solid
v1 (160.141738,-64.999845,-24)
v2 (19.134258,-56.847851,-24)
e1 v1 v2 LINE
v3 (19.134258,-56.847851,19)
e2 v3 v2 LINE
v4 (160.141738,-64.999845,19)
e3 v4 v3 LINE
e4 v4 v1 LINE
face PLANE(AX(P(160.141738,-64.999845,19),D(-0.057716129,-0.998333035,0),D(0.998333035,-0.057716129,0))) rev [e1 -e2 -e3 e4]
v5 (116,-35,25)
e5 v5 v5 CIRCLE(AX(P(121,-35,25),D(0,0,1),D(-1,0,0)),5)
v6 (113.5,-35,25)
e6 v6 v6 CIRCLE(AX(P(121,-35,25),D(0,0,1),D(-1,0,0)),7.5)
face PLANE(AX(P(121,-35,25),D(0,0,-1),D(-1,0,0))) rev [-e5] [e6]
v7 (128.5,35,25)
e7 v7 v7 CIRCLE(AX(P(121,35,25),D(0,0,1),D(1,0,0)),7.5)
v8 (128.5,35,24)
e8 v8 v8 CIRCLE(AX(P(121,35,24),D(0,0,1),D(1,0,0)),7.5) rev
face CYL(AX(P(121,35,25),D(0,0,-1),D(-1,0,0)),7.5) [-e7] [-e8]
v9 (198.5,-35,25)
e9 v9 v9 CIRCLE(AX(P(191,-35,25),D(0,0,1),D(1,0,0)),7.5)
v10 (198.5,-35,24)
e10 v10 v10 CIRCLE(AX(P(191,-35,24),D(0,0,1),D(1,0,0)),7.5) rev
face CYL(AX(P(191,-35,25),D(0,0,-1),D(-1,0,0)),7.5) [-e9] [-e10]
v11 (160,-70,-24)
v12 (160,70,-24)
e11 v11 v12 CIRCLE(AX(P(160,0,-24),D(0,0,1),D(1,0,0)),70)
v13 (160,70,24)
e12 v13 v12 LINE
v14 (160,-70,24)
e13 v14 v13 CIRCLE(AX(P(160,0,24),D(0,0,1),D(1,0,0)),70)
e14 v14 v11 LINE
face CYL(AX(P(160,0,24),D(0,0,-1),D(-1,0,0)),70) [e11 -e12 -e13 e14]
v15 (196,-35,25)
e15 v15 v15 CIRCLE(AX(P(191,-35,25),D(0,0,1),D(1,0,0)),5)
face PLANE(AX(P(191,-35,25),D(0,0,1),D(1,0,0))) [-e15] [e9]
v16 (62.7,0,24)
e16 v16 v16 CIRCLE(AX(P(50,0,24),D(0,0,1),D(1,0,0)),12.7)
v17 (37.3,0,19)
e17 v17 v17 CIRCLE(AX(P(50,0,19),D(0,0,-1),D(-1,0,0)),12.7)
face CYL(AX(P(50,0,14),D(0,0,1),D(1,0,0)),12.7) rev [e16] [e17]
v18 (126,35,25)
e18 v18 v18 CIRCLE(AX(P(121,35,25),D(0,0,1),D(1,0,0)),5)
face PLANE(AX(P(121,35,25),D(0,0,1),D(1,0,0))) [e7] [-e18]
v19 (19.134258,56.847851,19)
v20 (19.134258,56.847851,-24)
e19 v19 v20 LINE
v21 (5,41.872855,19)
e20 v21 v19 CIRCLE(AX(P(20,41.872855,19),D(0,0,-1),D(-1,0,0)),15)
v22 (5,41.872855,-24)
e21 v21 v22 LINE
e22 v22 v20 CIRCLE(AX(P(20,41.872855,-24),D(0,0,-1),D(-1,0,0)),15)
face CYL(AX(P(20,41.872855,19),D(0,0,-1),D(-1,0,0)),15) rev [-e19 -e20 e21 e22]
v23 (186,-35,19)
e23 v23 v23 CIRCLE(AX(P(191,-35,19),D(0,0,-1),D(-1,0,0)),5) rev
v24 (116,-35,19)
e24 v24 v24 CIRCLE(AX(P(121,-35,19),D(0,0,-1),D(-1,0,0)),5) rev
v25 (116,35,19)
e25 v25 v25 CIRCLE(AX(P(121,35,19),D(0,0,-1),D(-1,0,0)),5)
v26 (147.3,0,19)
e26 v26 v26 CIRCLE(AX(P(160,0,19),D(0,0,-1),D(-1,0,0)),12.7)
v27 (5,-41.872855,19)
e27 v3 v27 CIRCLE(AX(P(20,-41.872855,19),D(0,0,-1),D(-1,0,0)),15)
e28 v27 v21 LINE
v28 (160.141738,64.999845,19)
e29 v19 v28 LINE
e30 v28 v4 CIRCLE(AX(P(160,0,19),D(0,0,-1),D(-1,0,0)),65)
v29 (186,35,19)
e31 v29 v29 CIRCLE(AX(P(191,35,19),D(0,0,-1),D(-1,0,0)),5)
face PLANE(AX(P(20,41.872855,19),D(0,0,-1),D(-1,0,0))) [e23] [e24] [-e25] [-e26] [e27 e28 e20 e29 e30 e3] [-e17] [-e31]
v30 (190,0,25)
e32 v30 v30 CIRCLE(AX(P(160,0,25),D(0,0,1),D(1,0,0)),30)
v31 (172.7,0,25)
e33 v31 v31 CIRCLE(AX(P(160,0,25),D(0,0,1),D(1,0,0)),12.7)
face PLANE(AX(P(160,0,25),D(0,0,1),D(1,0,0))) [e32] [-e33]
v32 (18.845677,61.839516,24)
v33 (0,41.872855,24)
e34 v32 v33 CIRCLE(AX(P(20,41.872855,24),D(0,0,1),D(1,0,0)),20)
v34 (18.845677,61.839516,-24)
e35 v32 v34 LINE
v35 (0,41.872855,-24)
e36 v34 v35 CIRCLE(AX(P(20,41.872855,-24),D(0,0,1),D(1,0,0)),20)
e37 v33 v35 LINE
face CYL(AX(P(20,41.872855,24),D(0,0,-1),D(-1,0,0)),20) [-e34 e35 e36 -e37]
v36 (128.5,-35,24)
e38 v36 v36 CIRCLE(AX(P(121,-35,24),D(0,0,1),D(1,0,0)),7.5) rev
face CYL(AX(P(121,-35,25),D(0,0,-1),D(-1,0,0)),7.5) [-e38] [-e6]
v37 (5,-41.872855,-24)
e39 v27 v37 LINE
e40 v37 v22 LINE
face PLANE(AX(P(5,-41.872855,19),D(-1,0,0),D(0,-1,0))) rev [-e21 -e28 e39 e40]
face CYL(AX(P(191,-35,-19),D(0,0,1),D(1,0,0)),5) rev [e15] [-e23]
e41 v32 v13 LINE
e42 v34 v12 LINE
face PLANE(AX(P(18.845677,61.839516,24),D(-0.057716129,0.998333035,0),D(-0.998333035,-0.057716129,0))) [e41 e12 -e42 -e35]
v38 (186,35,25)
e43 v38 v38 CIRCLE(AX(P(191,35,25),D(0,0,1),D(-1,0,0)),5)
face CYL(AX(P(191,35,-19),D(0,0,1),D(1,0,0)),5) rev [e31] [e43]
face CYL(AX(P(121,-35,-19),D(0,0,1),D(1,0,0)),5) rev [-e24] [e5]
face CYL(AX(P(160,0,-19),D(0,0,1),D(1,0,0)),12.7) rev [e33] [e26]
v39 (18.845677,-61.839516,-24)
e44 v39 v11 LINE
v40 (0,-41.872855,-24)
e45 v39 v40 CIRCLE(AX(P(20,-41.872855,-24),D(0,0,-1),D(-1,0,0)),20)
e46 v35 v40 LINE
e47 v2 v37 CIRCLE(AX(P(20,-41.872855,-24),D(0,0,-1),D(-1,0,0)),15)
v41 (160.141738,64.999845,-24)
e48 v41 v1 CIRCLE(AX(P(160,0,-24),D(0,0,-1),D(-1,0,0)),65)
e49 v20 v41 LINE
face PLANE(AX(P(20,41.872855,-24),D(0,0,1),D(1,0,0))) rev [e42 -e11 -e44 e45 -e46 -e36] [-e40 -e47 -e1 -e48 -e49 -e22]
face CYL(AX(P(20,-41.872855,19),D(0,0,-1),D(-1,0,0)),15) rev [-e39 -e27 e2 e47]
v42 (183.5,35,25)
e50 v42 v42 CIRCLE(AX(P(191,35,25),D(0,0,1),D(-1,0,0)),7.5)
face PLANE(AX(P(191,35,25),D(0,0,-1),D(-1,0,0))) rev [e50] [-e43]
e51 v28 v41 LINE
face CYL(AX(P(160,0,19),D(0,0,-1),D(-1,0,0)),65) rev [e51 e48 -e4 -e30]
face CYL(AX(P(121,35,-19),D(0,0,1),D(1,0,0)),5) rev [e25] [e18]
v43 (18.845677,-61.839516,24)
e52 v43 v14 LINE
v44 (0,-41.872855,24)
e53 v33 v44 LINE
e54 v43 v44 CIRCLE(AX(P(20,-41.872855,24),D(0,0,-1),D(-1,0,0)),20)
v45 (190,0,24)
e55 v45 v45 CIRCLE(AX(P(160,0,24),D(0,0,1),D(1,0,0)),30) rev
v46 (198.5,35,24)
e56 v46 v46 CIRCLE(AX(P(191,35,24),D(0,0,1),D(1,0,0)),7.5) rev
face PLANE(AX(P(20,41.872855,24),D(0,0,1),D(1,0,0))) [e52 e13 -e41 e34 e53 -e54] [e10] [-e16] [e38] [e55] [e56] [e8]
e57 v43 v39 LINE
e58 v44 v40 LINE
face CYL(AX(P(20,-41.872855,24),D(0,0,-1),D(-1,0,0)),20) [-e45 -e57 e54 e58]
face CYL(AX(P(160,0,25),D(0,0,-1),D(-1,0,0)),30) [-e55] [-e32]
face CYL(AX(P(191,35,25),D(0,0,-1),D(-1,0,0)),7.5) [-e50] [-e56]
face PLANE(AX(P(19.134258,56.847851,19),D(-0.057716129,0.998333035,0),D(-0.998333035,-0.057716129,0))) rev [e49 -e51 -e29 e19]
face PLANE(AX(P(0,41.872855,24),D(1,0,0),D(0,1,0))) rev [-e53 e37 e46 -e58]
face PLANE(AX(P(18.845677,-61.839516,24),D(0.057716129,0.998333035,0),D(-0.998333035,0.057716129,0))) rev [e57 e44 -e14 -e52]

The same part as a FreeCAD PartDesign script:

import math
import FreeCAD as App
import Part
import Sketcher
from FreeCAD import Vector
Q = App.Units.Quantity

doc = App.newDocument("Part")
params = doc.addObject("Spreadsheet::Sheet", "Params")
for row, (alias, value) in enumerate([
    ("sketch1_radius", "20 mm"),
    ("sketch1_radius2", "70 mm"),
    ("pad1_length", "48 mm"),
    ("sketch2_radius", "65 mm"),
    ("sketch2_radius2", "15 mm"),
    ("pocket1_length", "43 mm"),
    ("sketch3_diameter", "25.4 mm"),
    ("pocket2_length", "43 mm"),
    ("sketch4_diameter", "10 mm"),
    ("pocket3_length", "43 mm"),
    ("sketch5_diameter", "15 mm"),
    ("sketch5_diameter2", "10 mm"),
    ("sketch5_diameter3", "60 mm"),
    ("sketch5_diameter4", "22 mm"),
    ("pad2_length", "2 mm"),
    ("sketch6_diameter", "25.4 mm"),
    ("pocket4_length", "10 mm"),
    ("sketch7_diameter", "25.4 mm"),
    ("pocket5_length", "10 mm"),
], start=1):
    params.set(f"A{row}", alias)
    params.set(f"B{row}", "=" + value)
    params.setAlias(f"B{row}", alias)

body = doc.addObject("PartDesign::Body", "Body")

# Sketch on XY plane
sketch1 = body.newObject("Sketcher::SketchObject", "Sketch")
sketch1.AttachmentSupport = (doc.getObject("XY_Plane"), [""])
sketch1.MapMode = "FlatFace"
sketch1.addGeometry(Part.LineSegment(Vector(0, 42, 0), Vector(0, -42, 0)), False)
sketch1.addGeometry(Part.ArcOfCircle(Part.Circle(Vector(20, -42, 0), Vector(0, 0, 1), 20), math.radians(180), math.radians(267)), False)
sketch1.addGeometry(Part.LineSegment(Vector(19, -62, 0), Vector(160, -70, 0)), False)
sketch1.addGeometry(Part.ArcOfCircle(Part.Circle(Vector(160, 0, 0), Vector(0, 0, 1), 70), math.radians(-90), math.radians(90)), False)
sketch1.addGeometry(Part.LineSegment(Vector(160, 70, 0), Vector(19, 62, 0)), False)
sketch1.addGeometry(Part.ArcOfCircle(Part.Circle(Vector(20, 42, 0), Vector(0, 0, 1), 20), math.radians(93), math.radians(180)), False)
sketch1.addConstraint(Sketcher.Constraint("Tangent", 0, 2, 1, 1))
sketch1.addConstraint(Sketcher.Constraint("Tangent", 1, 2, 2, 1))
sketch1.addConstraint(Sketcher.Constraint("Coincident", 2, 2, 3, 1))
sketch1.addConstraint(Sketcher.Constraint("Coincident", 3, 2, 4, 1))
sketch1.addConstraint(Sketcher.Constraint("Tangent", 4, 2, 5, 1))
sketch1.addConstraint(Sketcher.Constraint("Tangent", 5, 2, 0, 1))
sketch1.addConstraint(Sketcher.Constraint("Vertical", 0))
sketch1.addConstraint(Sketcher.Constraint("Equal", 1, 5))
sketch1.addConstraint(Sketcher.Constraint("Symmetric", 0, 2, 5, 2, -1, 1))
sketch1.addConstraint(Sketcher.Constraint("Symmetric", 2, 2, 3, 2, -1))
sketch1.addConstraint(Sketcher.Constraint("Vertical", 3, 3, 2, 2))
sketch1.addConstraint(Sketcher.Constraint("Radius", 1, Q("20 mm")))
sketch1.addConstraint(Sketcher.Constraint("Radius", 3, Q("70 mm")))
sketch1.addConstraint(Sketcher.Constraint("DistanceX", -1, 1, 3, 3, Q("160 mm")))
sketch1.addConstraint(Sketcher.Constraint("DistanceY", 0, 2, 0, 1, Q("83.74571 mm")))
sketch1.setExpression("Constraints[11]", "Params.sketch1_radius")
sketch1.setExpression("Constraints[12]", "Params.sketch1_radius2")
pad1 = body.newObject("PartDesign::Pad", "Pad")
pad1.Profile = sketch1
pad1.setExpression("Length", "Params.pad1_length")
pad1.Midplane = True

# Sketch on XY plane
sketch2 = body.newObject("Sketcher::SketchObject", "Sketch001")
sketch2.AttachmentSupport = (doc.getObject("XY_Plane"), [""])
sketch2.MapMode = "FlatFace"
sketch2.AttachmentOffset = App.Placement(Vector(0, 0, -24), App.Rotation())
sketch2.addGeometry(Part.LineSegment(Vector(19, 57, 0), Vector(160, 65, 0)), False)
sketch2.addGeometry(Part.ArcOfCircle(Part.Circle(Vector(160, 0, 0), Vector(0, 0, 1), 65), math.radians(-90), math.radians(90)), False)
sketch2.addGeometry(Part.LineSegment(Vector(160, -65, 0), Vector(19, -57, 0)), False)
sketch2.addGeometry(Part.ArcOfCircle(Part.Circle(Vector(20, -42, 0), Vector(0, 0, 1), 15), math.radians(180), math.radians(267)), False)
sketch2.addGeometry(Part.LineSegment(Vector(5, -42, 0), Vector(5, 42, 0)), False)
sketch2.addGeometry(Part.ArcOfCircle(Part.Circle(Vector(20, 42, 0), Vector(0, 0, 1), 15), math.radians(93), math.radians(180)), False)
sketch2.addConstraint(Sketcher.Constraint("Coincident", 0, 2, 1, 2))
sketch2.addConstraint(Sketcher.Constraint("Coincident", 1, 1, 2, 1))
sketch2.addConstraint(Sketcher.Constraint("Tangent", 2, 2, 3, 2))
sketch2.addConstraint(Sketcher.Constraint("Tangent", 3, 1, 4, 1))
sketch2.addConstraint(Sketcher.Constraint("Tangent", 4, 2, 5, 2))
sketch2.addConstraint(Sketcher.Constraint("Tangent", 5, 1, 0, 1))
sketch2.addConstraint(Sketcher.Constraint("Vertical", 4))
sketch2.addConstraint(Sketcher.Constraint("Equal", 3, 5))
sketch2.addConstraint(Sketcher.Constraint("Symmetric", 0, 2, 1, 1, -1))
sketch2.addConstraint(Sketcher.Constraint("Vertical", 2, 2, 5, 1))
sketch2.addConstraint(Sketcher.Constraint("Radius", 1, Q("65 mm")))
sketch2.addConstraint(Sketcher.Constraint("Radius", 3, Q("15 mm")))
sketch2.addConstraint(Sketcher.Constraint("DistanceX", -1, 1, 1, 3, Q("160 mm")))
sketch2.addConstraint(Sketcher.Constraint("DistanceX", -1, 1, 3, 3, Q("20 mm")))
sketch2.addConstraint(Sketcher.Constraint("DistanceY", 4, 1, 4, 2, Q("83.74571 mm")))
sketch2.addConstraint(Sketcher.Constraint("DistanceX", -1, 1, 2, 2, Q("19.134258 mm")))
sketch2.setExpression("Constraints[10]", "Params.sketch2_radius")
sketch2.setExpression("Constraints[11]", "Params.sketch2_radius2")
pocket1 = body.newObject("PartDesign::Pocket", "Pocket")
pocket1.Profile = sketch2
pocket1.setExpression("Length", "Params.pocket1_length")
pocket1.Reversed = True

# Sketch on XY plane
sketch3 = body.newObject("Sketcher::SketchObject", "Sketch002")
sketch3.AttachmentSupport = (doc.getObject("XY_Plane"), [""])
sketch3.MapMode = "FlatFace"
sketch3.AttachmentOffset = App.Placement(Vector(0, 0, 24), App.Rotation())
sketch3.addGeometry(Part.Circle(Vector(160, 0, 0), Vector(0, 0, 1), 13), False)
sketch3.addConstraint(Sketcher.Constraint("PointOnObject", 0, 3, -1))
sketch3.addConstraint(Sketcher.Constraint("Diameter", 0, Q("25.4 mm")))
sketch3.addConstraint(Sketcher.Constraint("DistanceX", -1, 1, 0, 3, Q("160 mm")))
sketch3.setExpression("Constraints[1]", "Params.sketch3_diameter")
pocket2 = body.newObject("PartDesign::Pocket", "Pocket001")
pocket2.Profile = sketch3
pocket2.setExpression("Length", "Params.pocket2_length")

# Sketch on XY plane
sketch4 = body.newObject("Sketcher::SketchObject", "Sketch003")
sketch4.AttachmentSupport = (doc.getObject("XY_Plane"), [""])
sketch4.MapMode = "FlatFace"
sketch4.AttachmentOffset = App.Placement(Vector(0, 0, 24), App.Rotation())
sketch4.addGeometry(Part.Circle(Vector(121, 35, 0), Vector(0, 0, 1), 5), False)
sketch4.addGeometry(Part.Circle(Vector(191, 35, 0), Vector(0, 0, 1), 5), False)
sketch4.addGeometry(Part.Circle(Vector(191, -35, 0), Vector(0, 0, 1), 5), False)
sketch4.addGeometry(Part.Circle(Vector(121, -35, 0), Vector(0, 0, 1), 5), False)
sketch4.addConstraint(Sketcher.Constraint("Equal", 0, 1))
sketch4.addConstraint(Sketcher.Constraint("Equal", 1, 2))
sketch4.addConstraint(Sketcher.Constraint("Equal", 2, 3))
sketch4.addConstraint(Sketcher.Constraint("Symmetric", 1, 3, 2, 3, -1))
sketch4.addConstraint(Sketcher.Constraint("Symmetric", 0, 3, 3, 3, -1))
sketch4.addConstraint(Sketcher.Constraint("Horizontal", 0, 3, 1, 3))
sketch4.addConstraint(Sketcher.Constraint("Diameter", 0, Q("10 mm")))
sketch4.addConstraint(Sketcher.Constraint("DistanceX", -1, 1, 0, 3, Q("121 mm")))
sketch4.addConstraint(Sketcher.Constraint("DistanceY", -1, 1, 0, 3, Q("35 mm")))
sketch4.addConstraint(Sketcher.Constraint("DistanceX", -1, 1, 1, 3, Q("191 mm")))
sketch4.setExpression("Constraints[6]", "Params.sketch4_diameter")
pocket3 = body.newObject("PartDesign::Pocket", "Pocket002")
pocket3.Profile = sketch4
pocket3.setExpression("Length", "Params.pocket3_length")

# Sketch on XY plane
sketch5 = body.newObject("Sketcher::SketchObject", "Sketch004")
sketch5.AttachmentSupport = (doc.getObject("XY_Plane"), [""])
sketch5.MapMode = "FlatFace"
sketch5.AttachmentOffset = App.Placement(Vector(0, 0, 24), App.Rotation())
sketch5.addGeometry(Part.Circle(Vector(121, 35, 0), Vector(0, 0, 1), 8), False)
sketch5.addGeometry(Part.Circle(Vector(121, 35, 0), Vector(0, 0, 1), 5), False)
sketch5.addGeometry(Part.Circle(Vector(121, -35, 0), Vector(0, 0, 1), 8), False)
sketch5.addGeometry(Part.Circle(Vector(121, -35, 0), Vector(0, 0, 1), 5), False)
sketch5.addGeometry(Part.Circle(Vector(191, 35, 0), Vector(0, 0, 1), 8), False)
sketch5.addGeometry(Part.Circle(Vector(191, 35, 0), Vector(0, 0, 1), 5), False)
sketch5.addGeometry(Part.Circle(Vector(191, -35, 0), Vector(0, 0, 1), 8), False)
sketch5.addGeometry(Part.Circle(Vector(191, -35, 0), Vector(0, 0, 1), 5), False)
sketch5.addGeometry(Part.Circle(Vector(160, 0, 0), Vector(0, 0, 1), 30), False)
sketch5.addGeometry(Part.Circle(Vector(160, 0, 0), Vector(0, 0, 1), 11), False)
sketch5.addConstraint(Sketcher.Constraint("Coincident", 1, 3, 0, 3))
sketch5.addConstraint(Sketcher.Constraint("Coincident", 3, 3, 2, 3))
sketch5.addConstraint(Sketcher.Constraint("Coincident", 5, 3, 4, 3))
sketch5.addConstraint(Sketcher.Constraint("Coincident", 7, 3, 6, 3))
sketch5.addConstraint(Sketcher.Constraint("Coincident", 9, 3, 8, 3))
sketch5.addConstraint(Sketcher.Constraint("Equal", 0, 2))
sketch5.addConstraint(Sketcher.Constraint("Equal", 1, 3))
sketch5.addConstraint(Sketcher.Constraint("Equal", 2, 4))
sketch5.addConstraint(Sketcher.Constraint("Equal", 3, 5))
sketch5.addConstraint(Sketcher.Constraint("Equal", 4, 6))
sketch5.addConstraint(Sketcher.Constraint("Equal", 5, 7))
sketch5.addConstraint(Sketcher.Constraint("Symmetric", 0, 3, 2, 3, -1))
sketch5.addConstraint(Sketcher.Constraint("Symmetric", 4, 3, 6, 3, -1))
sketch5.addConstraint(Sketcher.Constraint("PointOnObject", 8, 3, -1))
sketch5.addConstraint(Sketcher.Constraint("Horizontal", 1, 3, 4, 3))
sketch5.addConstraint(Sketcher.Constraint("Diameter", 0, Q("15 mm")))
sketch5.addConstraint(Sketcher.Constraint("Diameter", 1, Q("10 mm")))
sketch5.addConstraint(Sketcher.Constraint("Diameter", 8, Q("60 mm")))
sketch5.addConstraint(Sketcher.Constraint("Diameter", 9, Q("22 mm")))
sketch5.addConstraint(Sketcher.Constraint("DistanceX", -1, 1, 0, 3, Q("121 mm")))
sketch5.addConstraint(Sketcher.Constraint("DistanceY", -1, 1, 0, 3, Q("35 mm")))
sketch5.addConstraint(Sketcher.Constraint("DistanceX", -1, 1, 4, 3, Q("191 mm")))
sketch5.addConstraint(Sketcher.Constraint("DistanceX", -1, 1, 8, 3, Q("160 mm")))
sketch5.setExpression("Constraints[15]", "Params.sketch5_diameter")
sketch5.setExpression("Constraints[16]", "Params.sketch5_diameter2")
sketch5.setExpression("Constraints[17]", "Params.sketch5_diameter3")
sketch5.setExpression("Constraints[18]", "Params.sketch5_diameter4")
pad2 = body.newObject("PartDesign::Pad", "Pad001")
pad2.Profile = sketch5
pad2.setExpression("Length", "Params.pad2_length")
pad2.Midplane = True

# Sketch on XY plane
sketch6 = body.newObject("Sketcher::SketchObject", "Sketch005")
sketch6.AttachmentSupport = (doc.getObject("XY_Plane"), [""])
sketch6.MapMode = "FlatFace"
sketch6.AttachmentOffset = App.Placement(Vector(0, 0, 24), App.Rotation())
sketch6.addGeometry(Part.Circle(Vector(50, 0, 0), Vector(0, 0, 1), 13), False)
sketch6.addConstraint(Sketcher.Constraint("PointOnObject", 0, 3, -1))
sketch6.addConstraint(Sketcher.Constraint("Diameter", 0, Q("25.4 mm")))
sketch6.addConstraint(Sketcher.Constraint("DistanceX", -1, 1, 0, 3, Q("50 mm")))
sketch6.setExpression("Constraints[1]", "Params.sketch6_diameter")
pocket4 = body.newObject("PartDesign::Pocket", "Pocket003")
pocket4.Profile = sketch6
pocket4.setExpression("Length", "Params.pocket4_length")

# Sketch on XY plane
sketch7 = body.newObject("Sketcher::SketchObject", "Sketch006")
sketch7.AttachmentSupport = (doc.getObject("XY_Plane"), [""])
sketch7.MapMode = "FlatFace"
sketch7.AttachmentOffset = App.Placement(Vector(0, 0, 33), App.Rotation())
sketch7.addGeometry(Part.Circle(Vector(160, 0, 0), Vector(0, 0, 1), 13), False)
sketch7.addConstraint(Sketcher.Constraint("PointOnObject", 0, 3, -1))
sketch7.addConstraint(Sketcher.Constraint("Diameter", 0, Q("25.4 mm")))
sketch7.addConstraint(Sketcher.Constraint("DistanceX", -1, 1, 0, 3, Q("160 mm")))
sketch7.setExpression("Constraints[1]", "Params.sketch7_diameter")
pocket5 = body.newObject("PartDesign::Pocket", "Pocket004")
pocket5.Profile = sketch7
pocket5.setExpression("Length", "Params.pocket5_length")

doc.recompute()
